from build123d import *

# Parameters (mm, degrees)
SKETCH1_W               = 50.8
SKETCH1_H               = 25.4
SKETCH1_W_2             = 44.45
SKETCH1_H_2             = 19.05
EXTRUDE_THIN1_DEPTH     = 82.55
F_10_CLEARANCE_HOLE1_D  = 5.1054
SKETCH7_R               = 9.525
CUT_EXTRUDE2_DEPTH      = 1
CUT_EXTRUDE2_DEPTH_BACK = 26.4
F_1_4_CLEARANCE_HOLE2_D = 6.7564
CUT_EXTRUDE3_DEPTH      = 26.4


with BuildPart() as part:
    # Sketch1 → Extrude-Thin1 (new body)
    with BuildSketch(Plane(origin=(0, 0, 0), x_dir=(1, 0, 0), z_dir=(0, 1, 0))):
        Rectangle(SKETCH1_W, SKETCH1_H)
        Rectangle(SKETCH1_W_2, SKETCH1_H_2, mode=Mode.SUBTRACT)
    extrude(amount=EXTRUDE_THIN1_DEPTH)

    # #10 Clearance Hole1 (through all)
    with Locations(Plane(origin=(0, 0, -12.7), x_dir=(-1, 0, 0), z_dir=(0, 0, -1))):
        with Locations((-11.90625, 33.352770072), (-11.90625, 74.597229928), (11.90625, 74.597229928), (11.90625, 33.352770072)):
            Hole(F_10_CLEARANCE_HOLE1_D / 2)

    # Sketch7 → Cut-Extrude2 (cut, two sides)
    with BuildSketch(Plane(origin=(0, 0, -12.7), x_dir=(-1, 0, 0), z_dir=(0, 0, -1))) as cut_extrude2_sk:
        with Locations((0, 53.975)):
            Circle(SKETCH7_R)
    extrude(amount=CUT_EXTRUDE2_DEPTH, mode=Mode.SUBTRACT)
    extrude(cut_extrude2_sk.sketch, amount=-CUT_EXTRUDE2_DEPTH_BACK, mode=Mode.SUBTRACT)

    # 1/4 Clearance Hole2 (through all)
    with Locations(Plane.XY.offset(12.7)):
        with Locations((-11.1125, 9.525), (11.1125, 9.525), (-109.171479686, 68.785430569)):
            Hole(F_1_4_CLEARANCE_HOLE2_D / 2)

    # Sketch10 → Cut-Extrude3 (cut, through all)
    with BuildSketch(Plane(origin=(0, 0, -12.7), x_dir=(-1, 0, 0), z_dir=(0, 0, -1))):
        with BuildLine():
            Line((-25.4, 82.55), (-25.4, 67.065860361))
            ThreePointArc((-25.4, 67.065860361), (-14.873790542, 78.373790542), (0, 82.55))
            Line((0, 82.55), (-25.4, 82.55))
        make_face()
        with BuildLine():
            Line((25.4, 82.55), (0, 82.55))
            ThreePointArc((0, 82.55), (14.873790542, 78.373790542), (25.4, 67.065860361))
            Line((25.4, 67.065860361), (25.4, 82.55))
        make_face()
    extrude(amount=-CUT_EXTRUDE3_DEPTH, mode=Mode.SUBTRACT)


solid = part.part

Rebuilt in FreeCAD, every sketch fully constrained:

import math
import FreeCAD as App
import Part
import Sketcher

V = App.Vector
Q = App.Units.Quantity

doc = App.newDocument("Part")
body = doc.addObject("PartDesign::Body", "Body")

sketch1 = body.newObject("Sketcher::SketchObject", "Sketch")
sketch1.AttachmentSupport = (doc.getObject("XZ_Plane"), [""])
sketch1.MapMode = "FlatFace"
sketch1.addGeometry([
    Part.LineSegment(V(-25, -13, 0), V(-25, 13, 0)),
    Part.LineSegment(V(-25, 13, 0), V(25, 13, 0)),
    Part.LineSegment(V(25, 13, 0), V(25, -13, 0)),
    Part.LineSegment(V(25, -13, 0), V(-25, -13, 0)),
    Part.LineSegment(V(22, 10, 0), V(-22, 10, 0)),
    Part.LineSegment(V(-22, 10, 0), V(-22, -10, 0)),
    Part.LineSegment(V(-22, -10, 0), V(22, -10, 0)),
    Part.LineSegment(V(22, -10, 0), V(22, 10, 0)),
], False)
sketch1.addConstraint([
    Sketcher.Constraint("Coincident", 0, 2, 1, 1),
    Sketcher.Constraint("Coincident", 1, 2, 2, 1),
    Sketcher.Constraint("Coincident", 2, 2, 3, 1),
    Sketcher.Constraint("Coincident", 3, 2, 0, 1),
    Sketcher.Constraint("Coincident", 4, 2, 5, 1),
    Sketcher.Constraint("Coincident", 5, 2, 6, 1),
    Sketcher.Constraint("Coincident", 6, 2, 7, 1),
    Sketcher.Constraint("Coincident", 7, 2, 4, 1),
    Sketcher.Constraint("Vertical", 0),
    Sketcher.Constraint("Horizontal", 1),
    Sketcher.Constraint("Vertical", 2),
    Sketcher.Constraint("Horizontal", 3),
    Sketcher.Constraint("Horizontal", 4),
    Sketcher.Constraint("Vertical", 5),
    Sketcher.Constraint("Horizontal", 6),
    Sketcher.Constraint("Vertical", 7),
    Sketcher.Constraint("Symmetric", 0, 2, 2, 2, -1, 1),
    Sketcher.Constraint("Symmetric", 4, 2, 6, 2, -1, 1),
    Sketcher.Constraint("DistanceX", 1, 1, 1, 2, Q("2 in")),
    Sketcher.Constraint("DistanceY", 0, 1, 0, 2, Q("1 in")),
    Sketcher.Constraint("DistanceX", 4, 2, 4, 1, Q("1.75 in")),
    Sketcher.Constraint("DistanceY", 5, 2, 5, 1, Q("0.75 in")),
])
pad1 = body.newObject("PartDesign::Pad", "Pad")
pad1.Profile = sketch1
pad1.Length = Q("3.25 in")
pad1.Reversed = True

sketch2 = body.newObject("Sketcher::SketchObject", "Sketch001")
sketch2.AttachmentSupport = (doc.getObject("XY_Plane"), [""])
sketch2.MapMode = "FlatFace"
sketch2.AttachmentOffset = App.Placement(V(0, 0, -0.5 * 25.4), App.Rotation())
sketch2.addGeometry([
    Part.Circle(V(11.9, 33.4, 0), V(0, 0, 1), 2.6),
    Part.Circle(V(11.9, 74.6, 0), V(0, 0, 1), 2.6),
    Part.Circle(V(-11.9, 74.6, 0), V(0, 0, 1), 2.6),
    Part.Circle(V(-11.9, 33.4, 0), V(0, 0, 1), 2.6),
], False)
sketch2.addConstraint([
    Sketcher.Constraint("Equal", 0, 1),
    Sketcher.Constraint("Equal", 1, 2),
    Sketcher.Constraint("Equal", 2, 3),
    Sketcher.Constraint("Symmetric", 1, 3, 2, 3, -2),
    Sketcher.Constraint("Symmetric", 0, 3, 3, 3, -2),
    Sketcher.Constraint("Vertical", 0, 3, 1, 3),
    Sketcher.Constraint("Diameter", 0, Q("0.201 in")),
    Sketcher.Constraint("DistanceX", -1, 1, 0, 3, Q("0.46875 in")),
    Sketcher.Constraint("DistanceY", -1, 1, 0, 3, Q("33.35277 mm")),
    Sketcher.Constraint("DistanceY", -1, 1, 1, 3, Q("74.59723 mm")),
])
doc.recompute()
hole = body.newObject("PartDesign::Hole", "Hole")
hole.Profile = sketch2
hole.ThreadType = "None"
hole.Diameter = Q("0.201 in")
hole.DepthType = "ThroughAll"
hole.Reversed = True

sketch3 = body.newObject("Sketcher::SketchObject", "Sketch002")
sketch3.AttachmentSupport = (doc.getObject("XY_Plane"), [""])
sketch3.MapMode = "FlatFace"
sketch3.AttachmentOffset = App.Placement(V(0, 0, -0.5 * 25.4), App.Rotation())
sketch3.addGeometry(Part.Circle(V(0, 54, 0), V(0, 0, 1), 10), False)
sketch3.addConstraint([
    Sketcher.Constraint("PointOnObject", 0, 3, -2),
    Sketcher.Constraint("Diameter", 0, Q("0.75 in")),
    Sketcher.Constraint("DistanceY", -1, 1, 0, 3, Q("2.125 in")),
])
pocket1 = body.newObject("PartDesign::Pocket", "Pocket")
pocket1.Profile = sketch3
pocket1.Type = "ThroughAll"
pocket1.Midplane = True

sketch4 = body.newObject("Sketcher::SketchObject", "Sketch003")
sketch4.AttachmentSupport = (doc.getObject("XY_Plane"), [""])
sketch4.MapMode = "FlatFace"
sketch4.AttachmentOffset = App.Placement(V(0, 0, 0.5 * 25.4), App.Rotation())
sketch4.addGeometry([
    Part.Circle(V(-11.1, 9.5, 0), V(0, 0, 1), 3.4),
    Part.Circle(V(11.1, 9.5, 0), V(0, 0, 1), 3.4),
    Part.Circle(V(-109.2, 68.8, 0), V(0, 0, 1), 3.4),
], False)
sketch4.addConstraint([
    Sketcher.Constraint("Equal", 0, 1),
    Sketcher.Constraint("Equal", 1, 2),
    Sketcher.Constraint("Symmetric", 0, 3, 1, 3, -2),
    Sketcher.Constraint("Diameter", 0, Q("0.266 in")),
    Sketcher.Constraint("DistanceX", 0, 3, -1, 1, Q("0.4375 in")),
    Sketcher.Constraint("DistanceY", -1, 1, 0, 3, Q("0.375 in")),
    Sketcher.Constraint("DistanceX", 2, 3, -1, 1, Q("109.17148 mm")),
    Sketcher.Constraint("DistanceY", -1, 1, 2, 3, Q("68.785431 mm")),
])
doc.recompute()
hole2 = body.newObject("PartDesign::Hole", "Hole001")
hole2.Profile = sketch4
hole2.ThreadType = "None"
hole2.Diameter = Q("0.266 in")
hole2.DepthType = "ThroughAll"

sketch5 = body.newObject("Sketcher::SketchObject", "Sketch004")
sketch5.AttachmentSupport = (doc.getObject("XY_Plane"), [""])
sketch5.MapMode = "FlatFace"
sketch5.AttachmentOffset = App.Placement(V(0, 0, -0.5 * 25.4), App.Rotation())
sketch5.addGeometry([
    Part.LineSegment(V(25, 83, 0), V(25, 67, 0)),
    Part.ArcOfCircle(Part.Circle(V(0, 54, 0), V(0, 0, 1), 29), math.radians(27), math.radians(90)),
    Part.LineSegment(V(0, 83, 0), V(25, 83, 0)),
    Part.LineSegment(V(-25, 83, 0), V(0, 83, 0)),
    Part.ArcOfCircle(Part.Circle(V(0, 54, 0), V(0, 0, 1), 29), math.radians(90), math.radians(153)),
    Part.LineSegment(V(-25, 67, 0), V(-25, 83, 0)),
], False)
sketch5.addConstraint([
    Sketcher.Constraint("Coincident", 0, 2, 1, 1),
    Sketcher.Constraint("Tangent", 1, 2, 2, 1),
    Sketcher.Constraint("Coincident", 2, 2, 0, 1),
    Sketcher.Constraint("Tangent", 3, 2, 4, 1),
    Sketcher.Constraint("Coincident", 4, 2, 5, 1),
    Sketcher.Constraint("Coincident", 5, 2, 3, 1),
    Sketcher.Constraint("Vertical", 0),
    Sketcher.Constraint("Horizontal", 2),
    Sketcher.Constraint("Horizontal", 3),
    Sketcher.Constraint("Vertical", 5),
    Sketcher.Constraint("Coincident", 4, 3, 1, 3),
    Sketcher.Constraint("Equal", 1, 4),
    Sketcher.Constraint("Symmetric", 0, 2, 4, 2, -2),
    Sketcher.Constraint("DistanceX", 2, 1, 2, 2, Q("1 in")),
    Sketcher.Constraint("Radius", 1, Q("1.125 in")),
    Sketcher.Constraint("DistanceY", -1, 1, 1, 2, Q("3.25 in")),
])
pocket2 = body.newObject("PartDesign::Pocket", "Pocket001")
pocket2.Profile = sketch5
pocket2.Type = "ThroughAll"
pocket2.Reversed = True

doc.recompute()
